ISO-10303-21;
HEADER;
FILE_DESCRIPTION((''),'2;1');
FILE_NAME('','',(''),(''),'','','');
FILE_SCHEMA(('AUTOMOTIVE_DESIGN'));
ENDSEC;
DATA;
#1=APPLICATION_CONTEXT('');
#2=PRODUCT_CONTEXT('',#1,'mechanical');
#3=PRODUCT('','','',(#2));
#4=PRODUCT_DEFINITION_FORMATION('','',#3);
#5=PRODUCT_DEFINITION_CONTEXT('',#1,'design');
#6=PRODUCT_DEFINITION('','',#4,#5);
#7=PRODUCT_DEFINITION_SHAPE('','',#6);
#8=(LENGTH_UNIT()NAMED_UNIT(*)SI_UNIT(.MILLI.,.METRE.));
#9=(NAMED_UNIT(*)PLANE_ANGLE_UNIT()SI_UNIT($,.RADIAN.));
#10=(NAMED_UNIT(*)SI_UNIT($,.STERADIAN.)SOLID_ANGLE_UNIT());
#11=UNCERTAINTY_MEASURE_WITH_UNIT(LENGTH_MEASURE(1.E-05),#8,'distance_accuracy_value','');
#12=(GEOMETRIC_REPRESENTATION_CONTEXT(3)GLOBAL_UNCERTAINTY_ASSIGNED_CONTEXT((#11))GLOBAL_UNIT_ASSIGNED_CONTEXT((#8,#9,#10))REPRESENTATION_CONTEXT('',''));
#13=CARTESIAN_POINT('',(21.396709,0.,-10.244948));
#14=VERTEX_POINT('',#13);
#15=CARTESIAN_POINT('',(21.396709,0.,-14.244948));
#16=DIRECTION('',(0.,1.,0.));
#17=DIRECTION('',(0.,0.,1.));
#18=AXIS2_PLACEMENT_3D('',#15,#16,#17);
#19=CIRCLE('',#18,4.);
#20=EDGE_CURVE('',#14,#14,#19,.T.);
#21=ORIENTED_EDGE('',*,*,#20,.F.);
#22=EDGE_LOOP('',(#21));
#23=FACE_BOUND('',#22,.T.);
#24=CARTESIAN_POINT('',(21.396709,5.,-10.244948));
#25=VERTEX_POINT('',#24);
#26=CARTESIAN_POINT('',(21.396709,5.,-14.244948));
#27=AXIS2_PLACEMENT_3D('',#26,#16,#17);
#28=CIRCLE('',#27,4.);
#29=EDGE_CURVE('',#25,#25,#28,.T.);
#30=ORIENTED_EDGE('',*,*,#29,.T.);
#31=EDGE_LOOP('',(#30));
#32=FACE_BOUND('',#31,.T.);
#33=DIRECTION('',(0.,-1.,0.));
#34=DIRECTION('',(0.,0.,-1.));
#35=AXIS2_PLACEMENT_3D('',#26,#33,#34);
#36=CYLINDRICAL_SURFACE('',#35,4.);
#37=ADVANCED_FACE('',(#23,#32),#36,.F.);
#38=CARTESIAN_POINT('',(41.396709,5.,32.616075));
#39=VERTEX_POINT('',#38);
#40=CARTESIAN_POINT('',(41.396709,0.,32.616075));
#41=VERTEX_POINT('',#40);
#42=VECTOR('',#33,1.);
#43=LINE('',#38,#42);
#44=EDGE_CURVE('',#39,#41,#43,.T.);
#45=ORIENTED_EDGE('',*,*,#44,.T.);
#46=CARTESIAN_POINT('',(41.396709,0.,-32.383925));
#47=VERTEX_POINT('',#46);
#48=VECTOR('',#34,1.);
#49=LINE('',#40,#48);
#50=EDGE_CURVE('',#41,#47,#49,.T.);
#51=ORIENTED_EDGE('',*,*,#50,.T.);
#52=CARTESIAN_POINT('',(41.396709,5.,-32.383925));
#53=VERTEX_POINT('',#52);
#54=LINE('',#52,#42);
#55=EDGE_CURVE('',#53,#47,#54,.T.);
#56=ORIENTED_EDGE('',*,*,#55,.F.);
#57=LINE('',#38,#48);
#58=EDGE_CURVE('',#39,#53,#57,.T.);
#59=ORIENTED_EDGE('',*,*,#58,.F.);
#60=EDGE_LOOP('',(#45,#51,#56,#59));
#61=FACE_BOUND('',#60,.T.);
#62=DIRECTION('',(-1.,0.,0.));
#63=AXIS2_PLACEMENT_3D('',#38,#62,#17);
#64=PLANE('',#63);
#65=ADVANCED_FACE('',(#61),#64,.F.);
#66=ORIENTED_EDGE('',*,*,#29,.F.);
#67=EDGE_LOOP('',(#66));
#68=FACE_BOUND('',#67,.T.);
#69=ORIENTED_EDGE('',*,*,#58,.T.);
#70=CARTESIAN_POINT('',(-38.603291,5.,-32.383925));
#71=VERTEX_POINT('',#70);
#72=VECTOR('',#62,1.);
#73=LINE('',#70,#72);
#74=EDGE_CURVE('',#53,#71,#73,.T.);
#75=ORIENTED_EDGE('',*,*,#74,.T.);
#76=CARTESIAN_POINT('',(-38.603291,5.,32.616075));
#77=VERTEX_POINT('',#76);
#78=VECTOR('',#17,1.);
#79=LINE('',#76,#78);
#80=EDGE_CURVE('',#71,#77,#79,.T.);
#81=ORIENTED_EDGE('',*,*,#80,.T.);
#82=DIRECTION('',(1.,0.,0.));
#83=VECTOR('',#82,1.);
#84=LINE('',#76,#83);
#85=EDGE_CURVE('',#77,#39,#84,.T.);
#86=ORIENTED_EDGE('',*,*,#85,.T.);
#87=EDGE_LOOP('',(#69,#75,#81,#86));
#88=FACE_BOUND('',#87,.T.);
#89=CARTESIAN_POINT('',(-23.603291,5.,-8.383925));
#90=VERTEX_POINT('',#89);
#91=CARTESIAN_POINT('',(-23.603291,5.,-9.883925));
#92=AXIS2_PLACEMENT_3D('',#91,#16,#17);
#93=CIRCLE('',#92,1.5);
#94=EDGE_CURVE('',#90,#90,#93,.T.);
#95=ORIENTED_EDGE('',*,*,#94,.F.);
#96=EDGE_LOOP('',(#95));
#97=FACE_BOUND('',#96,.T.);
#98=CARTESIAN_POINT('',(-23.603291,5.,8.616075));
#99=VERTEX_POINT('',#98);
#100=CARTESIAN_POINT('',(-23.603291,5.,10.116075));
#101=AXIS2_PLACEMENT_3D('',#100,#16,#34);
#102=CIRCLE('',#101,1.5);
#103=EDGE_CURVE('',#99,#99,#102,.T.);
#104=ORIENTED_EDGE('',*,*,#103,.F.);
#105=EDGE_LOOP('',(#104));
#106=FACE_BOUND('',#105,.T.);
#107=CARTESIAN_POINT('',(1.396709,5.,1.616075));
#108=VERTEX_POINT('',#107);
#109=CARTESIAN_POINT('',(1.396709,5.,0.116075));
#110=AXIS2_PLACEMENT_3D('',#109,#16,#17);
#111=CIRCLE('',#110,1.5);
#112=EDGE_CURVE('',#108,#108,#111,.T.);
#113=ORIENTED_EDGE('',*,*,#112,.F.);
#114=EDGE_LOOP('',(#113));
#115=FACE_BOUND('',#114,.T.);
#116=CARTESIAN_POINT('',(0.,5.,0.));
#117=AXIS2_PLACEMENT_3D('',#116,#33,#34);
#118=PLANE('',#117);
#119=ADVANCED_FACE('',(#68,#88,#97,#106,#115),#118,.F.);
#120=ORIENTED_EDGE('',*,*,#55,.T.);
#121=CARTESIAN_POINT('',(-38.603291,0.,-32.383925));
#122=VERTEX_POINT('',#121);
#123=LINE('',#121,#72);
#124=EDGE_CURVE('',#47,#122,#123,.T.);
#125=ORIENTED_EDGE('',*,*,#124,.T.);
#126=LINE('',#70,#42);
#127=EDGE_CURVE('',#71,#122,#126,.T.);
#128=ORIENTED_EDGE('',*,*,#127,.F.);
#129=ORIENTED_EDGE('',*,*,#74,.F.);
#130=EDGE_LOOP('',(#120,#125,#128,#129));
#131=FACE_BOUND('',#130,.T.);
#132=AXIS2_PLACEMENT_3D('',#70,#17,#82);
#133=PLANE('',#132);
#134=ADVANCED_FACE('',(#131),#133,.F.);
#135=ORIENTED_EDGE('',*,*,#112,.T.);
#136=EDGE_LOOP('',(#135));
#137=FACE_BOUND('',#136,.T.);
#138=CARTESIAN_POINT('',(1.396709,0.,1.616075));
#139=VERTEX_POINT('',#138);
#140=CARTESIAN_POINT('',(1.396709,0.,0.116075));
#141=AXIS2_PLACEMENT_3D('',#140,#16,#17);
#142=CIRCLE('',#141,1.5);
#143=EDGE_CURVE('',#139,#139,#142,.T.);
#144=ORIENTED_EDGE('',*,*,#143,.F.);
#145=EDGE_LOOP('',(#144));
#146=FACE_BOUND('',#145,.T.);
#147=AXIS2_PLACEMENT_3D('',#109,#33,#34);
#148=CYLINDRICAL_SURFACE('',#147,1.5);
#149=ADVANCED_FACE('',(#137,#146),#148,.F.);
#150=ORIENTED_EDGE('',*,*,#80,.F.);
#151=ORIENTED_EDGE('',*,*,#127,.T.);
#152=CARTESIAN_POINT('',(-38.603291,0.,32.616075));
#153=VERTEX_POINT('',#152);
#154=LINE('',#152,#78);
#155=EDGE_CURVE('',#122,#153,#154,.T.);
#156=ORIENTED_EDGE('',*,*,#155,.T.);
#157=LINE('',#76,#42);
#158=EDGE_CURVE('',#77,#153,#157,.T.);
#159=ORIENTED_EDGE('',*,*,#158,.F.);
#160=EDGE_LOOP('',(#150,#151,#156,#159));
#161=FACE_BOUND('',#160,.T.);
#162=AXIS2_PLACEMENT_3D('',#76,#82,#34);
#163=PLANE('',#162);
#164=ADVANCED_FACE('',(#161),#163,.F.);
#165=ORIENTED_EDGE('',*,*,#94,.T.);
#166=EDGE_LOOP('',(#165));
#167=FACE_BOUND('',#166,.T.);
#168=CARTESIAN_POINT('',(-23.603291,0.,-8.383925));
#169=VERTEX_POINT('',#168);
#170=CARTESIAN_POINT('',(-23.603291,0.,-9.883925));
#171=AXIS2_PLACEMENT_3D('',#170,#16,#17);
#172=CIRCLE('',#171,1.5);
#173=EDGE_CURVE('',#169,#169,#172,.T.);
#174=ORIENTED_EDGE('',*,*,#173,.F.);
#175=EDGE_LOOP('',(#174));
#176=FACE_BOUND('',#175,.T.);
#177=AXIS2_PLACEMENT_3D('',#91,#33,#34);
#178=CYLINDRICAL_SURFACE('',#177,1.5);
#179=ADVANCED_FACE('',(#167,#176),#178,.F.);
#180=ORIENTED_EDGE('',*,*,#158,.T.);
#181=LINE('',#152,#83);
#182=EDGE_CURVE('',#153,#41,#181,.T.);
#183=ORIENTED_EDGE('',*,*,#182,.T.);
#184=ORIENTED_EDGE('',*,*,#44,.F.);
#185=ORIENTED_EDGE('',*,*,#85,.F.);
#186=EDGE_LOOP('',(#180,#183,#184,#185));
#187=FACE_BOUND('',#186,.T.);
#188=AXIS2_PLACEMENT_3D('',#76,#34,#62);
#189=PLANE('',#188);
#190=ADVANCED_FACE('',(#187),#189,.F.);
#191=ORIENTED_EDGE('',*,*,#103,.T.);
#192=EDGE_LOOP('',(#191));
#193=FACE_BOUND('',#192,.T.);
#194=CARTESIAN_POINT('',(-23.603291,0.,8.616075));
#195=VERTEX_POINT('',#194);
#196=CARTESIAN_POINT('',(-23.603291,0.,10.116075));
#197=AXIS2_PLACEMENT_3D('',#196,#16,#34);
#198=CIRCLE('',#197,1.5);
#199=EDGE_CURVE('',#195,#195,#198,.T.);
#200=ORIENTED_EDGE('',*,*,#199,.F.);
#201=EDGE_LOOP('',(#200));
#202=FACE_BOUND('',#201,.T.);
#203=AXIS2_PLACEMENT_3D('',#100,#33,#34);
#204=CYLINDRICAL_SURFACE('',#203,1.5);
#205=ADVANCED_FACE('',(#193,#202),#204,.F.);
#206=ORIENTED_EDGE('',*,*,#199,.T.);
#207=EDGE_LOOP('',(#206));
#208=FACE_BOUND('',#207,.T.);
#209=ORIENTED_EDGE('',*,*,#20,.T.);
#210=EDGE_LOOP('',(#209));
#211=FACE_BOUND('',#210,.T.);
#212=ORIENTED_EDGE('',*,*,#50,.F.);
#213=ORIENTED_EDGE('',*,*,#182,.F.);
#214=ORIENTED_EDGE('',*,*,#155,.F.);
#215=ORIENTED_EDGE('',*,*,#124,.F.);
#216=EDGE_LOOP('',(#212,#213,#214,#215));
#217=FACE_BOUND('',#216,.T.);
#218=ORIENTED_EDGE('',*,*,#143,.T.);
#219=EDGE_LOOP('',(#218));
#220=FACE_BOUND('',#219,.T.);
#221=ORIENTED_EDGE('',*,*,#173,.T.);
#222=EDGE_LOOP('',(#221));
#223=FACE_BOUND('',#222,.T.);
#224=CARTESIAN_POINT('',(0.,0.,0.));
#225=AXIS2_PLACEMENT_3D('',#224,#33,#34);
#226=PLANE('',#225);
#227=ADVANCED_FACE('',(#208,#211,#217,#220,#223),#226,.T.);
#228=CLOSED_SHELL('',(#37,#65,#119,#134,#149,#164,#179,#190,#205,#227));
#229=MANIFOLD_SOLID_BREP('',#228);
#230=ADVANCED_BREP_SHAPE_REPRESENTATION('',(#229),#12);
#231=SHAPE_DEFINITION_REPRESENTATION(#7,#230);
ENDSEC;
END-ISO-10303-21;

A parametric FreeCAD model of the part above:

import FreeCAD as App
import Part
import Sketcher
Q = App.Units.Quantity

doc = App.newDocument("Part")
params = doc.addObject("Spreadsheet::Sheet", "Params")
for row, (alias, value) in enumerate([
    ("sketch1_diameter", "3 mm"),
    ("sketch1_diameter2", "8 mm"),
    ("sketch1_width", "80 mm"),
    ("sketch1_height", "65 mm"),
    ("pad1_length", "5 mm"),
], start=1):
    params.set(f"A{row}", alias)
    params.set(f"B{row}", "=" + value)
    params.setAlias(f"B{row}", alias)

body = doc.addObject("PartDesign::Body", "Body")

sketch1 = doc.addObject("Sketcher::SketchObject", "Sketch")
body.addObject(sketch1)
sketch1.AttachmentSupport = (doc.XZ_Plane, [""])
sketch1.MapMode = "FlatFace"
sketch1.addGeometry(Part.LineSegment(App.Vector(-38.603291, -32.383925, 0), App.Vector(-38.603291, 32.616075, 0)), False)
sketch1.addGeometry(Part.LineSegment(App.Vector(-38.603291, 32.616075, 0), App.Vector(41.396709, 32.616075, 0)), False)
sketch1.addGeometry(Part.LineSegment(App.Vector(41.396709, 32.616075, 0), App.Vector(41.396709, -32.383925, 0)), False)
sketch1.addGeometry(Part.LineSegment(App.Vector(41.396709, -32.383925, 0), App.Vector(-38.603291, -32.383925, 0)), False)
sketch1.addGeometry(Part.Circle(App.Vector(-23.603291, 10.116075, 0), App.Vector(0, 0, 1), 1.5), False)
sketch1.addGeometry(Part.Circle(App.Vector(1.396709, 0.116075, 0), App.Vector(0, 0, 1), 1.5), False)
sketch1.addGeometry(Part.Circle(App.Vector(-23.603291, -9.883925, 0), App.Vector(0, 0, 1), 1.5), False)
sketch1.addGeometry(Part.Circle(App.Vector(21.396709, -14.244948, 0), App.Vector(0, 0, 1), 4), False)
sketch1.addConstraint(Sketcher.Constraint("Coincident", 0, 2, 1, 1))
sketch1.addConstraint(Sketcher.Constraint("Coincident", 1, 2, 2, 1))
sketch1.addConstraint(Sketcher.Constraint("Coincident", 2, 2, 3, 1))
sketch1.addConstraint(Sketcher.Constraint("Coincident", 3, 2, 0, 1))
sketch1.addConstraint(Sketcher.Constraint("Vertical", 0))
sketch1.addConstraint(Sketcher.Constraint("Horizontal", 1))
sketch1.addConstraint(Sketcher.Constraint("Vertical", 2))
sketch1.addConstraint(Sketcher.Constraint("Horizontal", 3))
sketch1.addConstraint(Sketcher.Constraint("Equal", 4, 5))
sketch1.addConstraint(Sketcher.Constraint("Equal", 5, 6))
sketch1.addConstraint(Sketcher.Constraint("Vertical", 4, 3, 6, 3))
sketch1.addConstraint(Sketcher.Constraint("Diameter", 4, Q("3 mm")))
sketch1.addConstraint(Sketcher.Constraint("Diameter", 7, Q("8 mm")))
sketch1.addConstraint(Sketcher.Constraint("DistanceX", 1, 1, 1, 2, Q("80 mm")))
sketch1.addConstraint(Sketcher.Constraint("DistanceY", 0, 1, 0, 2, Q("65 mm")))
sketch1.addConstraint(Sketcher.Constraint("DistanceX", 4, 3, 5, 3, Q("25 mm")))
sketch1.addConstraint(Sketcher.Constraint("DistanceY", 5, 3, 4, 3, Q("10 mm")))
sketch1.addConstraint(Sketcher.Constraint("DistanceY", 6, 3, 4, 3, Q("20 mm")))
sketch1.addConstraint(Sketcher.Constraint("DistanceX", 5, 3, 7, 3, Q("20 mm")))
sketch1.addConstraint(Sketcher.Constraint("DistanceX", 0, 2, 4, 3, Q("15 mm")))
sketch1.addConstraint(Sketcher.Constraint("DistanceY", 4, 3, 0, 2, Q("22.5 mm")))
sketch1.addConstraint(Sketcher.Constraint("DistanceX", 4, 3, -1, 1, Q("23.603291 mm")))
sketch1.addConstraint(Sketcher.Constraint("DistanceY", 7, 3, -1, 1, Q("14.244948 mm")))
sketch1.addConstraint(Sketcher.Constraint("DistanceY", -1, 1, 4, 3, Q("10.116075 mm")))
sketch1.setExpression("Constraints[11]", "Params.sketch1_diameter")
sketch1.setExpression("Constraints[12]", "Params.sketch1_diameter2")
sketch1.setExpression("Constraints[13]", "Params.sketch1_width")
sketch1.setExpression("Constraints[14]", "Params.sketch1_height")
pad1 = doc.addObject("PartDesign::Pad", "Pad")
body.addObject(pad1)
pad1.Profile = sketch1
pad1.setExpression("Length", "Params.pad1_length")
pad1.Reversed = True

doc.recompute()
